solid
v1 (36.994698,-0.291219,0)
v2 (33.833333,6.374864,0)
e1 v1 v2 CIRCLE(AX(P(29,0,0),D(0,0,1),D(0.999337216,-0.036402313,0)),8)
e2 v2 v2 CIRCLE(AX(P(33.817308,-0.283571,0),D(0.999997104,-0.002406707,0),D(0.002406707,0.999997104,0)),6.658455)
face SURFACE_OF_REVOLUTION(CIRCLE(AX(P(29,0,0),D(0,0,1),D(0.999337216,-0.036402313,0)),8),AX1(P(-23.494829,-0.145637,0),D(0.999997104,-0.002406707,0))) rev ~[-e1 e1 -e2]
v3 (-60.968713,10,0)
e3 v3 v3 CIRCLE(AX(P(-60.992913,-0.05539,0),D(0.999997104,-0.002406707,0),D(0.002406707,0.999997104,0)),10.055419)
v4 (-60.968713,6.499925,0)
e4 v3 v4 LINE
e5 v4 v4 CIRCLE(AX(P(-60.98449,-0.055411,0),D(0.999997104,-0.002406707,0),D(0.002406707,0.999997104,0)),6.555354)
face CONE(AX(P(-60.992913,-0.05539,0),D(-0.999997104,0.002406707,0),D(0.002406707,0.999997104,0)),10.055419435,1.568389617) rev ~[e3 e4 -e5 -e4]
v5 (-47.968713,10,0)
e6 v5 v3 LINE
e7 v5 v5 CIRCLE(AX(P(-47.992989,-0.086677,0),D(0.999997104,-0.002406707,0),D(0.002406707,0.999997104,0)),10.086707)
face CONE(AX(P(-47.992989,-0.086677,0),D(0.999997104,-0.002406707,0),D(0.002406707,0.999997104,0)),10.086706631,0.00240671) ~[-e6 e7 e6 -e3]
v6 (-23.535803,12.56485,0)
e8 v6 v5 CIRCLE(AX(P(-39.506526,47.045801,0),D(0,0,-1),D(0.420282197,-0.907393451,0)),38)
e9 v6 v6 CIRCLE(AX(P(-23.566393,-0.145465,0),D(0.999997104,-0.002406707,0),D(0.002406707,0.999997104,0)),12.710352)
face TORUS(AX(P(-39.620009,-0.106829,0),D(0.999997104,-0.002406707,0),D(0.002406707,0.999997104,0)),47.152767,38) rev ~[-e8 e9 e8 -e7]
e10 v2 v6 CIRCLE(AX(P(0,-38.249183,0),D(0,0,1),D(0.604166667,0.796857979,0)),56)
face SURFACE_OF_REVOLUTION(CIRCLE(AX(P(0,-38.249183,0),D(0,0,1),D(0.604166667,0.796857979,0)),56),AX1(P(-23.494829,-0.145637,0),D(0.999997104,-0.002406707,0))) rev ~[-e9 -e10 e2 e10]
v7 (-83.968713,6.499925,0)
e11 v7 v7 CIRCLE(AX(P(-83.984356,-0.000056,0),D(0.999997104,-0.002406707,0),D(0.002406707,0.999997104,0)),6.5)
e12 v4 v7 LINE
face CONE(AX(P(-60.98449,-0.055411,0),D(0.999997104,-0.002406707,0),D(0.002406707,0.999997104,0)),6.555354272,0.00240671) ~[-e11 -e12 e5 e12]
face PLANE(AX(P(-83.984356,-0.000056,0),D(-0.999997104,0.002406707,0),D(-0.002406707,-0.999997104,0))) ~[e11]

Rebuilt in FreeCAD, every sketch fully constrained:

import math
import FreeCAD as App
import Part
import Sketcher
Q = App.Units.Quantity

doc = App.newDocument("Part")
body = doc.addObject("PartDesign::Body", "Body")

sketch1 = body.newObject("Sketcher::SketchObject", "Sketch")
sketch1.AttachmentSupport = (doc.getObject("XY_Plane"), [""])
sketch1.MapMode = "FlatFace"
sketch1.addGeometry(Part.LineSegment(App.Vector(-84, 0, 0), App.Vector(37, -0.3, 0)), False)
sketch1.addGeometry(Part.ArcOfCircle(Part.Circle(App.Vector(29, 0, 0), App.Vector(0, 0, 1), 8), math.radians(-2), math.radians(53)), False)
sketch1.addGeometry(Part.ArcOfCircle(Part.Circle(App.Vector(0, -38.2, 0), App.Vector(0, 0, 1), 56), math.radians(53), math.radians(115)), False)
sketch1.addGeometry(Part.ArcOfCircle(Part.Circle(App.Vector(-39.5, 47, 0), App.Vector(0, 0, 1), 38), math.radians(-103), math.radians(-65)), False)
sketch1.addGeometry(Part.LineSegment(App.Vector(-48, 10, 0), App.Vector(-61, 10, 0)), False)
sketch1.addGeometry(Part.LineSegment(App.Vector(-61, 10, 0), App.Vector(-61, 6.5, 0)), False)
sketch1.addGeometry(Part.LineSegment(App.Vector(-61, 6.5, 0), App.Vector(-84, 6.5, 0)), False)
sketch1.addGeometry(Part.LineSegment(App.Vector(-84, 6.5, 0), App.Vector(-84, 0, 0)), False)
sketch1.addGeometry(Part.LineSegment(App.Vector(-84, 0, 0), App.Vector(37, -0.3, 0)), True)
sketch1.addConstraint(Sketcher.Constraint("Coincident", 0, 2, 1, 1))
sketch1.addConstraint(Sketcher.Constraint("Tangent", 1, 2, 2, 1))
sketch1.addConstraint(Sketcher.Constraint("Tangent", 2, 2, 3, 2))
sketch1.addConstraint(Sketcher.Constraint("Coincident", 3, 1, 4, 1))
sketch1.addConstraint(Sketcher.Constraint("Coincident", 4, 2, 5, 1))
sketch1.addConstraint(Sketcher.Constraint("Coincident", 5, 2, 6, 1))
sketch1.addConstraint(Sketcher.Constraint("Coincident", 6, 2, 7, 1))
sketch1.addConstraint(Sketcher.Constraint("Coincident", 7, 2, 0, 1))
sketch1.addConstraint(Sketcher.Constraint("Horizontal", 4))
sketch1.addConstraint(Sketcher.Constraint("Vertical", 5))
sketch1.addConstraint(Sketcher.Constraint("Horizontal", 6))
sketch1.addConstraint(Sketcher.Constraint("Coincident", 8, 1, 7, 2))
sketch1.addConstraint(Sketcher.Constraint("Coincident", 8, 2, 0, 2))
sketch1.addConstraint(Sketcher.Constraint("PointOnObject", 1, 3, -1))
sketch1.addConstraint(Sketcher.Constraint("PointOnObject", 2, 3, -2))
sketch1.addConstraint(Sketcher.Constraint("Perpendicular", 0, 7))
sketch1.addConstraint(Sketcher.Constraint("Radius", 1, Q("8 mm")))
sketch1.addConstraint(Sketcher.Constraint("Radius", 2, Q("56 mm")))
sketch1.addConstraint(Sketcher.Constraint("Radius", 3, Q("38 mm")))
sketch1.addConstraint(Sketcher.Constraint("DistanceX", 4, 2, 4, 1, Q("13 mm")))
sketch1.addConstraint(Sketcher.Constraint("DistanceX", 6, 2, 6, 1, Q("23 mm")))
sketch1.addConstraint(Sketcher.Constraint("DistanceX", -1, 1, 1, 3, Q("29 mm")))
sketch1.addConstraint(Sketcher.Constraint("DistanceY", -1, 1, 3, 1, Q("10 mm")))
sketch1.addConstraint(Sketcher.Constraint("Distance", 7, Q("6.5 mm")))
sketch1.addConstraint(Sketcher.Constraint("DistanceY", -1, 1, 3, 3, Q("47.045801 mm")))
sketch1.addConstraint(Sketcher.Constraint("DistanceY", 5, 2, 5, 1, Q("3.500075 mm")))
sketch1.addConstraint(Sketcher.Constraint("DistanceY", 0, 2, -1, 1, Q("0.291219 mm")))
revolution = body.newObject("PartDesign::Revolution", "Revolution")
revolution.Profile = sketch1
revolution.ReferenceAxis = (sketch1, ["Axis0"])
revolution.Angle = 360

doc.recompute()
